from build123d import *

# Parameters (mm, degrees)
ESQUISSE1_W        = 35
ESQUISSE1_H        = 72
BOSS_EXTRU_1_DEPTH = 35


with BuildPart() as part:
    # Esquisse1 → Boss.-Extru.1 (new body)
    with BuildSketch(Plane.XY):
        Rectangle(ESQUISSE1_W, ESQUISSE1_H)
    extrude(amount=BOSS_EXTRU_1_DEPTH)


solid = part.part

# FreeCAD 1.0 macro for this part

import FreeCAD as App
import Part
import Sketcher


def add_polygon(sketch, points):
    """Adds a closed chain of lines whose ends are joined by coincident constraints."""
    first, n = sketch.GeometryCount, len(points)
    for a, b in zip(points, points[1:] + points[:1]):
        sketch.addGeometry(Part.LineSegment(App.Vector(*a, 0), App.Vector(*b, 0)), False)
    for i in range(n):
        sketch.addConstraint(Sketcher.Constraint("Coincident", first + i, 2, first + (i + 1) % n, 1))

doc = App.newDocument("Part")
body = doc.addObject("PartDesign::Body", "Body")

sketch1 = doc.addObject("Sketcher::SketchObject", "Sketch")
body.addObject(sketch1)
sketch1.AttachmentSupport = (doc.XY_Plane, [""])
sketch1.MapMode = "FlatFace"
add_polygon(sketch1, [(-18, 36), (-18, -36), (18, -36), (18, 36)])
sketch1.addConstraint([
    Sketcher.Constraint("Vertical", 0),
    Sketcher.Constraint("Horizontal", 1),
    Sketcher.Constraint("Vertical", 2),
    Sketcher.Constraint("Horizontal", 3),
    Sketcher.Constraint("Symmetric", 0, 2, 2, 2, -1, 1),
    Sketcher.Constraint("DistanceX", 1, 1, 1, 2, 35.0),
    Sketcher.Constraint("DistanceY", 0, 2, 0, 1, 72.0),
])
pad1 = doc.addObject("PartDesign::Pad", "Pad")
body.addObject(pad1)
pad1.Profile = sketch1
pad1.Length = 35

doc.recompute()
